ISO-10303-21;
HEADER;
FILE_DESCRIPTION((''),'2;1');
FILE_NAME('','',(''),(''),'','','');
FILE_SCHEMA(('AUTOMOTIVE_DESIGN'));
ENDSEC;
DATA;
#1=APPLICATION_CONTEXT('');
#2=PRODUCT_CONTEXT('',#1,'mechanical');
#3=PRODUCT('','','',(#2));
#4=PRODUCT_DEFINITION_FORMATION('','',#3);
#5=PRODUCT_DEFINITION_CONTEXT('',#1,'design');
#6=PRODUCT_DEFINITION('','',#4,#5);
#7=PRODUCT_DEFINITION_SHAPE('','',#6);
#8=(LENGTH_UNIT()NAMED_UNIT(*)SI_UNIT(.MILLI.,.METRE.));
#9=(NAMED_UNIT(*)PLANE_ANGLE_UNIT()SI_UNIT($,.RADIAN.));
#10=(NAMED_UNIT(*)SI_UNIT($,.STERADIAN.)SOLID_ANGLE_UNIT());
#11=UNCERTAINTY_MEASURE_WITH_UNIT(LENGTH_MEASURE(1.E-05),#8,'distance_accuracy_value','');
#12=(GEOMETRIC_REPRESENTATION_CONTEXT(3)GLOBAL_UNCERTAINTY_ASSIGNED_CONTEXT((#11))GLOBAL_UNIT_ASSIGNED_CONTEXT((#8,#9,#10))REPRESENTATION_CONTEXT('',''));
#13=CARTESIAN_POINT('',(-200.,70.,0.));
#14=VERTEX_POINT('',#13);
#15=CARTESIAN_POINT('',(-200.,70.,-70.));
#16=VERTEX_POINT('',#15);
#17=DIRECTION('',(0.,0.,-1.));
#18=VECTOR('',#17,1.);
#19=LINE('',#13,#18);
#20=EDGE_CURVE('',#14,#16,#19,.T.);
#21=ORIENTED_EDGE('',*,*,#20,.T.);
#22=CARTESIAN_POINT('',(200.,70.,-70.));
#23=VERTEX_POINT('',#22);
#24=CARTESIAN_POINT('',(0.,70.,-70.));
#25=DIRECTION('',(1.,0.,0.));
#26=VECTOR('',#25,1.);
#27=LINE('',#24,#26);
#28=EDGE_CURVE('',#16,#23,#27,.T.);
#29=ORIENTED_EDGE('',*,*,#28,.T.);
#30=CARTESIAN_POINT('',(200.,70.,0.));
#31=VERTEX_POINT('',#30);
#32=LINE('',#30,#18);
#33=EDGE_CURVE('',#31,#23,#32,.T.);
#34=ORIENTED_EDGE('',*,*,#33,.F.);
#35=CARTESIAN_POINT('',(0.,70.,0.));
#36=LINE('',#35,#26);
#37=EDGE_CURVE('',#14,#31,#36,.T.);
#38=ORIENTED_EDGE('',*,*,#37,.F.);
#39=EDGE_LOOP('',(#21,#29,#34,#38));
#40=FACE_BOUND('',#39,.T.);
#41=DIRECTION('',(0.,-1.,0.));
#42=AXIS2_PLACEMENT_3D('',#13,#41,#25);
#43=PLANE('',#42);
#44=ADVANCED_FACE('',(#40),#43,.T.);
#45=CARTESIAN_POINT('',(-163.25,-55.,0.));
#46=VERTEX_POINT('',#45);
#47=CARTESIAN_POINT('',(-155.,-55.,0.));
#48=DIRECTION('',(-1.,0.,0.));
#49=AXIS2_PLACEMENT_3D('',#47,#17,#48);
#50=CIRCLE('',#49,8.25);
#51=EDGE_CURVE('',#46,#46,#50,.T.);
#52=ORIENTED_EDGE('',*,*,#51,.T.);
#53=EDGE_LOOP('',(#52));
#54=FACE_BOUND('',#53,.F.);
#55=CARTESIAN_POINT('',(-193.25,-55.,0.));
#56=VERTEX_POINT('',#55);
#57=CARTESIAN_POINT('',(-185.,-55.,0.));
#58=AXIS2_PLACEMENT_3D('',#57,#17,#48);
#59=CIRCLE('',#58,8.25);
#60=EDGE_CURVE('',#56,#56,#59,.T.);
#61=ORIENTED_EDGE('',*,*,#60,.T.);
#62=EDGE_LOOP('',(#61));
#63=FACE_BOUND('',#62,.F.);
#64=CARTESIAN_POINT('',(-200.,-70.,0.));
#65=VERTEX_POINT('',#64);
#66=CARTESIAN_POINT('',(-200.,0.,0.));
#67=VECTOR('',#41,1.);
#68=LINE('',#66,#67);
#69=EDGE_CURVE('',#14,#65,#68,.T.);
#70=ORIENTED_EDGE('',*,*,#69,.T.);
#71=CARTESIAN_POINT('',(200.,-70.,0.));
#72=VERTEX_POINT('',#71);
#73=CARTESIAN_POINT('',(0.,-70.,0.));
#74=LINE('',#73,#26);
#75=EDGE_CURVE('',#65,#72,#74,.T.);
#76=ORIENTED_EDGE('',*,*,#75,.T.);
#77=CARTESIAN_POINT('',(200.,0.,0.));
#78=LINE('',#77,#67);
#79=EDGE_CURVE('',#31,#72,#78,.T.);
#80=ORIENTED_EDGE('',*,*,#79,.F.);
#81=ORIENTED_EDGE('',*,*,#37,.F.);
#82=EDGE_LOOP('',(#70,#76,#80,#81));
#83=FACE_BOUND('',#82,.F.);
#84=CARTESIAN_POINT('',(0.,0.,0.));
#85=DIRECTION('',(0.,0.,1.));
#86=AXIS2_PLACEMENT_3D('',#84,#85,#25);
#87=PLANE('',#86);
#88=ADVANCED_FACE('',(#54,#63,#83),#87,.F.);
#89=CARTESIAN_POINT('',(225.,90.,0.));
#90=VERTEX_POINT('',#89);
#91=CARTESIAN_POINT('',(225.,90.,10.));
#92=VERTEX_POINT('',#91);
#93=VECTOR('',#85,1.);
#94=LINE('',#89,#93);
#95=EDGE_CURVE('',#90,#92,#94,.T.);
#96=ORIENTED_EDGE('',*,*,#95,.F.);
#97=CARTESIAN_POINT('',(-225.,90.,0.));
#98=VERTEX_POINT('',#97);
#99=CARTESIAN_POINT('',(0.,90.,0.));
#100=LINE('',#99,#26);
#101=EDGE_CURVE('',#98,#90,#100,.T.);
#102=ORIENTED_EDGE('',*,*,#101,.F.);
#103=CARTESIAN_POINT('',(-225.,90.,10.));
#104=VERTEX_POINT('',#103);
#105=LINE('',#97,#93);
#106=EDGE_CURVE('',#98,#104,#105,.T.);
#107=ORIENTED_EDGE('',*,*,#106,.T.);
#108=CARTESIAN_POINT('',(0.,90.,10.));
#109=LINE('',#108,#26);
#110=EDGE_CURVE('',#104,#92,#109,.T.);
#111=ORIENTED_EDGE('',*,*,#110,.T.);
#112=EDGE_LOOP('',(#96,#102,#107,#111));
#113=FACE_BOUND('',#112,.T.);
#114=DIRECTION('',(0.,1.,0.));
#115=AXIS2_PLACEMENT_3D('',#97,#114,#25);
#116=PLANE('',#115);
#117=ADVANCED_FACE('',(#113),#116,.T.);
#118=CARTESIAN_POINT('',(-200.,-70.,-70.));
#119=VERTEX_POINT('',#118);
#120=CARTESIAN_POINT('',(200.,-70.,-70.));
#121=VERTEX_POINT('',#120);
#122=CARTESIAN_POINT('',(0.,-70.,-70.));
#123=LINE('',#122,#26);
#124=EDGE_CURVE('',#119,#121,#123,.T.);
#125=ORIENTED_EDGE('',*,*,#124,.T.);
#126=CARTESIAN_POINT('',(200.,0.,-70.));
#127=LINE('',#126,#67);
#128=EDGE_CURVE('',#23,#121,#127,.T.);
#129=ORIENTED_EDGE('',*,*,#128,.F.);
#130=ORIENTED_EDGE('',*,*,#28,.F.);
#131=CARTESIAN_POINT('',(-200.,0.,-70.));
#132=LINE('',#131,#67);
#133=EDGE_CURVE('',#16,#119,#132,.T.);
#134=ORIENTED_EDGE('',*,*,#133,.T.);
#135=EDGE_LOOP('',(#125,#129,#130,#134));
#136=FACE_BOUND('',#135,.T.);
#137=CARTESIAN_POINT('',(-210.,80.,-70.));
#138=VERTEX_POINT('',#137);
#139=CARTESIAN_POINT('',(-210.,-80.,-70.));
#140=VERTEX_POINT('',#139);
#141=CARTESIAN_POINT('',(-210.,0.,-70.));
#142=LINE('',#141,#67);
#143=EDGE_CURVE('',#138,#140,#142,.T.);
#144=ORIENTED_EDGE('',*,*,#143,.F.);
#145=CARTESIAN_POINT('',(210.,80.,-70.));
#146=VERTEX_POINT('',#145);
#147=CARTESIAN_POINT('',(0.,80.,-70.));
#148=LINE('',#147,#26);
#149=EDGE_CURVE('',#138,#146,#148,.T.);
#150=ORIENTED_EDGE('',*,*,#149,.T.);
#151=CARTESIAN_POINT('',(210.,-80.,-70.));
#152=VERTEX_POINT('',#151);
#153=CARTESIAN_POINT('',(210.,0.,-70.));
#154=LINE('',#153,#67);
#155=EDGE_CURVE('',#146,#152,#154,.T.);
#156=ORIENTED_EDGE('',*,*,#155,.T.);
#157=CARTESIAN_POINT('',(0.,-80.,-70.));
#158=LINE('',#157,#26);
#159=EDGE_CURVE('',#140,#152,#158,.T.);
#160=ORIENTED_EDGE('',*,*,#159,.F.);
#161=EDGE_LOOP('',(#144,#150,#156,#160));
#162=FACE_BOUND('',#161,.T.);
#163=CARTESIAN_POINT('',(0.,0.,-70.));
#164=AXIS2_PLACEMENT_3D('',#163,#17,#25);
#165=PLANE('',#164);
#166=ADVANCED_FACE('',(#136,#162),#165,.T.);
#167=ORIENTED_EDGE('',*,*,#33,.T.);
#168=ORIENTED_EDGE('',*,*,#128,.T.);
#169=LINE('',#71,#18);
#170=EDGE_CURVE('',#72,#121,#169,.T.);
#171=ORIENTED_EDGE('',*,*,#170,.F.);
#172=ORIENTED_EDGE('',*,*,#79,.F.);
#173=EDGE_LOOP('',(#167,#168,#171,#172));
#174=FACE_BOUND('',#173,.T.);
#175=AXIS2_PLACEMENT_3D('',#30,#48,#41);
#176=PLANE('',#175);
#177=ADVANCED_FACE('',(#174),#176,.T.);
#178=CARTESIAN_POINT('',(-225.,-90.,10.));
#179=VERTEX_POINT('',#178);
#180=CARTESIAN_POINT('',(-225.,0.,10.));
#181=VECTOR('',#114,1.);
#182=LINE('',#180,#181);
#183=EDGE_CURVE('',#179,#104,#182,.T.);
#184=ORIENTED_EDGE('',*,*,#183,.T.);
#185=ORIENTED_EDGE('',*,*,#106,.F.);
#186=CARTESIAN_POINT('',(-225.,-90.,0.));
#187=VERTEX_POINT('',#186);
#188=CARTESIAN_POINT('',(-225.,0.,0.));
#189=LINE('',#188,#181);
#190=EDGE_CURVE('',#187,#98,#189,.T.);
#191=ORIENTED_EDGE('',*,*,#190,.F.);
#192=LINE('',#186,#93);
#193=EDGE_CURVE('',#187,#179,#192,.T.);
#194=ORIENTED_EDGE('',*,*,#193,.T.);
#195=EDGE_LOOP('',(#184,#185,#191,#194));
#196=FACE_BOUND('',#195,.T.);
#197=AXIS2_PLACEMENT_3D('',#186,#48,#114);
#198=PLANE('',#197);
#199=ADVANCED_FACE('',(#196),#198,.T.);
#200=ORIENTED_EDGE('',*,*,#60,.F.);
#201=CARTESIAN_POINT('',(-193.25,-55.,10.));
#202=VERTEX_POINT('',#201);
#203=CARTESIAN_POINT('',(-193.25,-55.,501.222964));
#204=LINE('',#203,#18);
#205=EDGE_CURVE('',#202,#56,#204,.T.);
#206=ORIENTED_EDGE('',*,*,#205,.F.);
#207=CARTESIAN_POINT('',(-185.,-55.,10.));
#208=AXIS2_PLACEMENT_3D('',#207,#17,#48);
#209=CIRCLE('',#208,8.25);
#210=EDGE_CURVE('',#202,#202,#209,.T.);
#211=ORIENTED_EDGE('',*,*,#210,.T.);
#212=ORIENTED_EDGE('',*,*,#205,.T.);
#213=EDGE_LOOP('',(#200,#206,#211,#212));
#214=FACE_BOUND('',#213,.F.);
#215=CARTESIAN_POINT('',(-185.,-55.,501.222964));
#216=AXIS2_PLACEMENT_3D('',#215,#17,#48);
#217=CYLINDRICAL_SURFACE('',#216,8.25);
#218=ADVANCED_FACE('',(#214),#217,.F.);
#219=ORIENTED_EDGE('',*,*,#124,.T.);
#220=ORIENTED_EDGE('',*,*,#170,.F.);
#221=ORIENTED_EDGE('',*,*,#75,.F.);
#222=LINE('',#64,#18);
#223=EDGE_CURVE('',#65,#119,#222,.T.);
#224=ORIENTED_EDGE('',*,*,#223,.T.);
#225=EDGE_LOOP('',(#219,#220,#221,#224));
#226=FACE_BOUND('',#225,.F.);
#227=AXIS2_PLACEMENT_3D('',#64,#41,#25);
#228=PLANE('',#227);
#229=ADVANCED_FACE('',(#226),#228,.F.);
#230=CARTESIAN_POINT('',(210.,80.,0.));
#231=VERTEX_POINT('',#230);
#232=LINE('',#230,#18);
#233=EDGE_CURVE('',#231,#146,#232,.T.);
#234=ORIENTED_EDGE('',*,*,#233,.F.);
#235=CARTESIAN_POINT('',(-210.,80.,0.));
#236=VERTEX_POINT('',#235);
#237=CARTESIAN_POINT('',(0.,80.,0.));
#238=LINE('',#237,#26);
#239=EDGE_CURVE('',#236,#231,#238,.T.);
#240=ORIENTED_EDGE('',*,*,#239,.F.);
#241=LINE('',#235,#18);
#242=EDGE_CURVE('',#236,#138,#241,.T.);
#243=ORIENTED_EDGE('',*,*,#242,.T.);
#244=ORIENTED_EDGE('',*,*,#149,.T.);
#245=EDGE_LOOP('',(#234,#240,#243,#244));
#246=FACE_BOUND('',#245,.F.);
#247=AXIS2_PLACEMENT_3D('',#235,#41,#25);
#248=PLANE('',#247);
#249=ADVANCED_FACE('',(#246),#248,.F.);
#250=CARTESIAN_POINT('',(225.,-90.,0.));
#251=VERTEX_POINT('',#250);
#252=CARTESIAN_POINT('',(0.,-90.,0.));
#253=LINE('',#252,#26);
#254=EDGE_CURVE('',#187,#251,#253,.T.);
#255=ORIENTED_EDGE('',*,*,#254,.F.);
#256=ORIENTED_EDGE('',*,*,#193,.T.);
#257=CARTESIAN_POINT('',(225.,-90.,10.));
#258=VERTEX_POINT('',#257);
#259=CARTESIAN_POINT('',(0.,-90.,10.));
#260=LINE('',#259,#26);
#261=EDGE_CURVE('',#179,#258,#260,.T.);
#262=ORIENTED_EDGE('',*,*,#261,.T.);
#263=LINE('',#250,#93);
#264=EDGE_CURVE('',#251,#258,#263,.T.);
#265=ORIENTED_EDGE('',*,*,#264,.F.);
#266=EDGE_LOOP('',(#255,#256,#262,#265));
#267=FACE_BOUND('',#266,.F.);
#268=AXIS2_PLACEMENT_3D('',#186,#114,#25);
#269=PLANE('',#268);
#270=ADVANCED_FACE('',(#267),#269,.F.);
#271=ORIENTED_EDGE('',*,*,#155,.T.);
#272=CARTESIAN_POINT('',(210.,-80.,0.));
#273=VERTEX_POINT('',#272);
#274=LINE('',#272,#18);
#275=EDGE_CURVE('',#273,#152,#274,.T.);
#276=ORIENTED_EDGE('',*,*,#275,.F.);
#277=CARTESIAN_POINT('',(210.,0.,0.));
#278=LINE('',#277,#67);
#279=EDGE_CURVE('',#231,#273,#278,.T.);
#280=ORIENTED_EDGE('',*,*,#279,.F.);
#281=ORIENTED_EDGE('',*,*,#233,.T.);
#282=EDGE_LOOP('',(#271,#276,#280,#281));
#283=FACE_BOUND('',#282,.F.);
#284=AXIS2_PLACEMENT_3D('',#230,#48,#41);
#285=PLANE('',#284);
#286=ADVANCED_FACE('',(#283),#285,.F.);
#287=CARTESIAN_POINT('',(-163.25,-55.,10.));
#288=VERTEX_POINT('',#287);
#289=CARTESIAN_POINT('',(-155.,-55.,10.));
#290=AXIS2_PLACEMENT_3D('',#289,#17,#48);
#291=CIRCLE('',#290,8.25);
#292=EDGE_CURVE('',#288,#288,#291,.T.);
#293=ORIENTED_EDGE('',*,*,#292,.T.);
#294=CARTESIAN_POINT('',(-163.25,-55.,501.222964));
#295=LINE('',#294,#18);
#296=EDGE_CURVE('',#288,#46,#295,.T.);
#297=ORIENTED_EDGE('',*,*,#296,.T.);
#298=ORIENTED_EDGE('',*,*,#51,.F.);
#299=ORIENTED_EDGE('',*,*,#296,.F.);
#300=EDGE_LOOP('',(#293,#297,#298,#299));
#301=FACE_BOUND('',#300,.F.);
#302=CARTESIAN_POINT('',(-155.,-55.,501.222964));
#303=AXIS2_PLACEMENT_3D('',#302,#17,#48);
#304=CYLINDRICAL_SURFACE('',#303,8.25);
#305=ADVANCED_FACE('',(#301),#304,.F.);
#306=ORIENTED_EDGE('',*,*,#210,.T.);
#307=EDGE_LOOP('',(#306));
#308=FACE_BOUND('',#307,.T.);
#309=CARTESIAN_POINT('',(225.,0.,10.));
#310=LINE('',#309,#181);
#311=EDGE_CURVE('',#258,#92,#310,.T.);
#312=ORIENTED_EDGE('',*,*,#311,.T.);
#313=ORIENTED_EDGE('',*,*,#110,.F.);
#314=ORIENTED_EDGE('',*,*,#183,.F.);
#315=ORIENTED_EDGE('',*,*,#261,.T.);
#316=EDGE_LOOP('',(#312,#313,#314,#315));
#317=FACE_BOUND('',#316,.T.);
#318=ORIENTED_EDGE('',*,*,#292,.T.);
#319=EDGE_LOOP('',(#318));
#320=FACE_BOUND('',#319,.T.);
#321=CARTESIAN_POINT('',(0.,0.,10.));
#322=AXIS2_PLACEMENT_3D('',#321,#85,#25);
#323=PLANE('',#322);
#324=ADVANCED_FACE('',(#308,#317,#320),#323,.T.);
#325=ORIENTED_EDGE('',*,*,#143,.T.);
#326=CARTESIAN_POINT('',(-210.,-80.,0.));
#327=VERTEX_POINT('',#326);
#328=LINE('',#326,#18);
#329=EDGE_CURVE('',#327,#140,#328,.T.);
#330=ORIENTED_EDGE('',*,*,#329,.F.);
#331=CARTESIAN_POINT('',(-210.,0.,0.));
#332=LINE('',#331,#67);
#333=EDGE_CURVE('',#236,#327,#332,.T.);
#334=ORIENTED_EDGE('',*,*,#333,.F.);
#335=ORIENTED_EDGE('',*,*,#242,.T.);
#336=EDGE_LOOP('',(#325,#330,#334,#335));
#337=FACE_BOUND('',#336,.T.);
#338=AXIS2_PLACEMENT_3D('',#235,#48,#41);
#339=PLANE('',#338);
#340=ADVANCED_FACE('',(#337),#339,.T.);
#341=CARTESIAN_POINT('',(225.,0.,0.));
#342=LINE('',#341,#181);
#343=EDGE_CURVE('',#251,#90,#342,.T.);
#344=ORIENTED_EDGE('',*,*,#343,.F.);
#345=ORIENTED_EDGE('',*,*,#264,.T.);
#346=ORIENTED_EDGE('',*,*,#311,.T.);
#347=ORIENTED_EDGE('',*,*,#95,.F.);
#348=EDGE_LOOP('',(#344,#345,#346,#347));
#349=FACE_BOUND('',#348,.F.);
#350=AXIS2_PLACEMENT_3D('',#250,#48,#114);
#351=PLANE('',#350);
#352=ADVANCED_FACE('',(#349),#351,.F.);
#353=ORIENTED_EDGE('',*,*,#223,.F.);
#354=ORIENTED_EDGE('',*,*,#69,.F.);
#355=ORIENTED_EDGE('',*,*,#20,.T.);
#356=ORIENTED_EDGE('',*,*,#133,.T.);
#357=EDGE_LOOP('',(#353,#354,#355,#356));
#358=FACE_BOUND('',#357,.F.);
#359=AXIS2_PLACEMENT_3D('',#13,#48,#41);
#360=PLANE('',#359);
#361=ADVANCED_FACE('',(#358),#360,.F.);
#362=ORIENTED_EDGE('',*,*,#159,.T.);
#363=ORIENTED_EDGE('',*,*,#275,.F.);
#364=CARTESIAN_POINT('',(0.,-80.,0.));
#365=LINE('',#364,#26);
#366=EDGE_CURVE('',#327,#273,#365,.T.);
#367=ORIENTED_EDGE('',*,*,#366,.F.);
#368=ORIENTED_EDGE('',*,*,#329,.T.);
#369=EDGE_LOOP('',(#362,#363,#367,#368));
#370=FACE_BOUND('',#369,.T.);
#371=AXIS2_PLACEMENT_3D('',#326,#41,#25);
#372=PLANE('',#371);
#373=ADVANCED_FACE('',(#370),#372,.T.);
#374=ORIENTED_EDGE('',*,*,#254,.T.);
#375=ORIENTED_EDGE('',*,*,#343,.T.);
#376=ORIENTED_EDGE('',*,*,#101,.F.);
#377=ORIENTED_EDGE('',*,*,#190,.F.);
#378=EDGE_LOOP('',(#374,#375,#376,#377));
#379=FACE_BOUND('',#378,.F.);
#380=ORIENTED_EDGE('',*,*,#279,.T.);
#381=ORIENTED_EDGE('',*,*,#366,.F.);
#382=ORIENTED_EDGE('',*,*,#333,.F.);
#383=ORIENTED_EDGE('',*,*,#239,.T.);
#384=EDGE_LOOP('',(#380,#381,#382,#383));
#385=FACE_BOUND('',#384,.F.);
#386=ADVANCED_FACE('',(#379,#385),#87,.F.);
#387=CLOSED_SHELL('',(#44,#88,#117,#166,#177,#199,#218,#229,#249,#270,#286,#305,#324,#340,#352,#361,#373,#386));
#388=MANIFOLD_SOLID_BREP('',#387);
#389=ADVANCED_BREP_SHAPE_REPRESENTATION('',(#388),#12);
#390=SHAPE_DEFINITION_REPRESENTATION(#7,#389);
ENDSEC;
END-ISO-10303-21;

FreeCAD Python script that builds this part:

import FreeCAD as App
import Part
import Sketcher

V = App.Vector


def add_polygon(sketch, points):
    """Adds a closed chain of lines whose ends are joined by coincident constraints."""
    first, n = sketch.GeometryCount, len(points)
    for a, b in zip(points, points[1:] + points[:1]):
        sketch.addGeometry(Part.LineSegment(App.Vector(*a, 0), App.Vector(*b, 0)), False)
    for i in range(n):
        sketch.addConstraint(Sketcher.Constraint("Coincident", first + i, 2, first + (i + 1) % n, 1))

doc = App.newDocument("Part")
body = doc.addObject("PartDesign::Body", "Body")

# Sketch on XY plane
sketch1 = doc.addObject("Sketcher::SketchObject", "Sketch")
body.addObject(sketch1)
sketch1.AttachmentSupport = (doc.XY_Plane, [""])
sketch1.MapMode = "FlatFace"
add_polygon(sketch1, [(-225, 90), (-225, -90), (225, -90), (225, 90)])  # lines 0-3
sketch1.addConstraint([
    Sketcher.Constraint("Vertical", 0),
    Sketcher.Constraint("Horizontal", 1),
    Sketcher.Constraint("Vertical", 2),
    Sketcher.Constraint("Horizontal", 3),
    Sketcher.Constraint("Symmetric", 0, 2, 2, 2, -1, 1),
    Sketcher.Constraint("DistanceX", 1, 1, 1, 2, 450.0),
    Sketcher.Constraint("DistanceY", 0, 2, 0, 1, 180.0),
])
pad1 = doc.addObject("PartDesign::Pad", "Pad")
body.addObject(pad1)
pad1.Profile = sketch1
pad1.Length = 10

# Sketch on XY plane
sketch2 = doc.addObject("Sketcher::SketchObject", "Sketch001")
body.addObject(sketch2)
sketch2.AttachmentSupport = (doc.XY_Plane, [""])
sketch2.MapMode = "FlatFace"
add_polygon(sketch2, [(-210, -80), (-210, 80), (210, 80), (210, -80)])  # lines 0-3
add_polygon(sketch2, [(200, 70), (-200, 70), (-200, -70), (200, -70)])  # lines 4-7
sketch2.addConstraint([
    Sketcher.Constraint("Vertical", 0),
    Sketcher.Constraint("Horizontal", 1),
    Sketcher.Constraint("Vertical", 2),
    Sketcher.Constraint("Horizontal", 3),
    Sketcher.Constraint("Horizontal", 4),
    Sketcher.Constraint("Vertical", 5),
    Sketcher.Constraint("Horizontal", 6),
    Sketcher.Constraint("Vertical", 7),
    Sketcher.Constraint("Symmetric", 0, 2, 2, 2, -1, 1),
    Sketcher.Constraint("Symmetric", 4, 2, 6, 2, -1, 1),
    Sketcher.Constraint("DistanceX", 1, 1, 1, 2, 420.0),
    Sketcher.Constraint("DistanceX", 4, 2, 4, 1, 400.0),
    Sketcher.Constraint("DistanceY", 0, 1, 0, 2, 160.0),
    Sketcher.Constraint("DistanceY", 5, 2, 5, 1, 140.0),
])
pad2 = doc.addObject("PartDesign::Pad", "Pad001")
body.addObject(pad2)
pad2.Profile = sketch2
pad2.Length = 70
pad2.Reversed = True

# Sketch on XY plane
sketch3 = doc.addObject("Sketcher::SketchObject", "Sketch002")
body.addObject(sketch3)
sketch3.AttachmentSupport = (doc.XY_Plane, [""])
sketch3.MapMode = "FlatFace"
sketch3.AttachmentOffset = App.Placement(V(0, 0, 10), App.Rotation())
sketch3.addGeometry([
    Part.Circle(V(-185, -55, 0), V(0, 0, 1), 8),
    Part.Circle(V(-155, -55, 0), V(0, 0, 1), 8),
], False)
sketch3.addConstraint([
    Sketcher.Constraint("Equal", 0, 1),
    Sketcher.Constraint("Horizontal", 0, 3, 1, 3),
    Sketcher.Constraint("Diameter", 0, 16.5),
    Sketcher.Constraint("DistanceX", 0, 3, -1, 1, 185.0),
    Sketcher.Constraint("DistanceY", 0, 3, -1, 1, 55.0),
    Sketcher.Constraint("DistanceX", 1, 3, -1, 1, 155.0),
])
doc.recompute()
hole = doc.addObject("PartDesign::Hole", "Hole")
body.addObject(hole)
hole.Profile = sketch3
hole.ThreadType = "None"
hole.Diameter = 16.5
hole.DepthType = "ThroughAll"

doc.recompute()
